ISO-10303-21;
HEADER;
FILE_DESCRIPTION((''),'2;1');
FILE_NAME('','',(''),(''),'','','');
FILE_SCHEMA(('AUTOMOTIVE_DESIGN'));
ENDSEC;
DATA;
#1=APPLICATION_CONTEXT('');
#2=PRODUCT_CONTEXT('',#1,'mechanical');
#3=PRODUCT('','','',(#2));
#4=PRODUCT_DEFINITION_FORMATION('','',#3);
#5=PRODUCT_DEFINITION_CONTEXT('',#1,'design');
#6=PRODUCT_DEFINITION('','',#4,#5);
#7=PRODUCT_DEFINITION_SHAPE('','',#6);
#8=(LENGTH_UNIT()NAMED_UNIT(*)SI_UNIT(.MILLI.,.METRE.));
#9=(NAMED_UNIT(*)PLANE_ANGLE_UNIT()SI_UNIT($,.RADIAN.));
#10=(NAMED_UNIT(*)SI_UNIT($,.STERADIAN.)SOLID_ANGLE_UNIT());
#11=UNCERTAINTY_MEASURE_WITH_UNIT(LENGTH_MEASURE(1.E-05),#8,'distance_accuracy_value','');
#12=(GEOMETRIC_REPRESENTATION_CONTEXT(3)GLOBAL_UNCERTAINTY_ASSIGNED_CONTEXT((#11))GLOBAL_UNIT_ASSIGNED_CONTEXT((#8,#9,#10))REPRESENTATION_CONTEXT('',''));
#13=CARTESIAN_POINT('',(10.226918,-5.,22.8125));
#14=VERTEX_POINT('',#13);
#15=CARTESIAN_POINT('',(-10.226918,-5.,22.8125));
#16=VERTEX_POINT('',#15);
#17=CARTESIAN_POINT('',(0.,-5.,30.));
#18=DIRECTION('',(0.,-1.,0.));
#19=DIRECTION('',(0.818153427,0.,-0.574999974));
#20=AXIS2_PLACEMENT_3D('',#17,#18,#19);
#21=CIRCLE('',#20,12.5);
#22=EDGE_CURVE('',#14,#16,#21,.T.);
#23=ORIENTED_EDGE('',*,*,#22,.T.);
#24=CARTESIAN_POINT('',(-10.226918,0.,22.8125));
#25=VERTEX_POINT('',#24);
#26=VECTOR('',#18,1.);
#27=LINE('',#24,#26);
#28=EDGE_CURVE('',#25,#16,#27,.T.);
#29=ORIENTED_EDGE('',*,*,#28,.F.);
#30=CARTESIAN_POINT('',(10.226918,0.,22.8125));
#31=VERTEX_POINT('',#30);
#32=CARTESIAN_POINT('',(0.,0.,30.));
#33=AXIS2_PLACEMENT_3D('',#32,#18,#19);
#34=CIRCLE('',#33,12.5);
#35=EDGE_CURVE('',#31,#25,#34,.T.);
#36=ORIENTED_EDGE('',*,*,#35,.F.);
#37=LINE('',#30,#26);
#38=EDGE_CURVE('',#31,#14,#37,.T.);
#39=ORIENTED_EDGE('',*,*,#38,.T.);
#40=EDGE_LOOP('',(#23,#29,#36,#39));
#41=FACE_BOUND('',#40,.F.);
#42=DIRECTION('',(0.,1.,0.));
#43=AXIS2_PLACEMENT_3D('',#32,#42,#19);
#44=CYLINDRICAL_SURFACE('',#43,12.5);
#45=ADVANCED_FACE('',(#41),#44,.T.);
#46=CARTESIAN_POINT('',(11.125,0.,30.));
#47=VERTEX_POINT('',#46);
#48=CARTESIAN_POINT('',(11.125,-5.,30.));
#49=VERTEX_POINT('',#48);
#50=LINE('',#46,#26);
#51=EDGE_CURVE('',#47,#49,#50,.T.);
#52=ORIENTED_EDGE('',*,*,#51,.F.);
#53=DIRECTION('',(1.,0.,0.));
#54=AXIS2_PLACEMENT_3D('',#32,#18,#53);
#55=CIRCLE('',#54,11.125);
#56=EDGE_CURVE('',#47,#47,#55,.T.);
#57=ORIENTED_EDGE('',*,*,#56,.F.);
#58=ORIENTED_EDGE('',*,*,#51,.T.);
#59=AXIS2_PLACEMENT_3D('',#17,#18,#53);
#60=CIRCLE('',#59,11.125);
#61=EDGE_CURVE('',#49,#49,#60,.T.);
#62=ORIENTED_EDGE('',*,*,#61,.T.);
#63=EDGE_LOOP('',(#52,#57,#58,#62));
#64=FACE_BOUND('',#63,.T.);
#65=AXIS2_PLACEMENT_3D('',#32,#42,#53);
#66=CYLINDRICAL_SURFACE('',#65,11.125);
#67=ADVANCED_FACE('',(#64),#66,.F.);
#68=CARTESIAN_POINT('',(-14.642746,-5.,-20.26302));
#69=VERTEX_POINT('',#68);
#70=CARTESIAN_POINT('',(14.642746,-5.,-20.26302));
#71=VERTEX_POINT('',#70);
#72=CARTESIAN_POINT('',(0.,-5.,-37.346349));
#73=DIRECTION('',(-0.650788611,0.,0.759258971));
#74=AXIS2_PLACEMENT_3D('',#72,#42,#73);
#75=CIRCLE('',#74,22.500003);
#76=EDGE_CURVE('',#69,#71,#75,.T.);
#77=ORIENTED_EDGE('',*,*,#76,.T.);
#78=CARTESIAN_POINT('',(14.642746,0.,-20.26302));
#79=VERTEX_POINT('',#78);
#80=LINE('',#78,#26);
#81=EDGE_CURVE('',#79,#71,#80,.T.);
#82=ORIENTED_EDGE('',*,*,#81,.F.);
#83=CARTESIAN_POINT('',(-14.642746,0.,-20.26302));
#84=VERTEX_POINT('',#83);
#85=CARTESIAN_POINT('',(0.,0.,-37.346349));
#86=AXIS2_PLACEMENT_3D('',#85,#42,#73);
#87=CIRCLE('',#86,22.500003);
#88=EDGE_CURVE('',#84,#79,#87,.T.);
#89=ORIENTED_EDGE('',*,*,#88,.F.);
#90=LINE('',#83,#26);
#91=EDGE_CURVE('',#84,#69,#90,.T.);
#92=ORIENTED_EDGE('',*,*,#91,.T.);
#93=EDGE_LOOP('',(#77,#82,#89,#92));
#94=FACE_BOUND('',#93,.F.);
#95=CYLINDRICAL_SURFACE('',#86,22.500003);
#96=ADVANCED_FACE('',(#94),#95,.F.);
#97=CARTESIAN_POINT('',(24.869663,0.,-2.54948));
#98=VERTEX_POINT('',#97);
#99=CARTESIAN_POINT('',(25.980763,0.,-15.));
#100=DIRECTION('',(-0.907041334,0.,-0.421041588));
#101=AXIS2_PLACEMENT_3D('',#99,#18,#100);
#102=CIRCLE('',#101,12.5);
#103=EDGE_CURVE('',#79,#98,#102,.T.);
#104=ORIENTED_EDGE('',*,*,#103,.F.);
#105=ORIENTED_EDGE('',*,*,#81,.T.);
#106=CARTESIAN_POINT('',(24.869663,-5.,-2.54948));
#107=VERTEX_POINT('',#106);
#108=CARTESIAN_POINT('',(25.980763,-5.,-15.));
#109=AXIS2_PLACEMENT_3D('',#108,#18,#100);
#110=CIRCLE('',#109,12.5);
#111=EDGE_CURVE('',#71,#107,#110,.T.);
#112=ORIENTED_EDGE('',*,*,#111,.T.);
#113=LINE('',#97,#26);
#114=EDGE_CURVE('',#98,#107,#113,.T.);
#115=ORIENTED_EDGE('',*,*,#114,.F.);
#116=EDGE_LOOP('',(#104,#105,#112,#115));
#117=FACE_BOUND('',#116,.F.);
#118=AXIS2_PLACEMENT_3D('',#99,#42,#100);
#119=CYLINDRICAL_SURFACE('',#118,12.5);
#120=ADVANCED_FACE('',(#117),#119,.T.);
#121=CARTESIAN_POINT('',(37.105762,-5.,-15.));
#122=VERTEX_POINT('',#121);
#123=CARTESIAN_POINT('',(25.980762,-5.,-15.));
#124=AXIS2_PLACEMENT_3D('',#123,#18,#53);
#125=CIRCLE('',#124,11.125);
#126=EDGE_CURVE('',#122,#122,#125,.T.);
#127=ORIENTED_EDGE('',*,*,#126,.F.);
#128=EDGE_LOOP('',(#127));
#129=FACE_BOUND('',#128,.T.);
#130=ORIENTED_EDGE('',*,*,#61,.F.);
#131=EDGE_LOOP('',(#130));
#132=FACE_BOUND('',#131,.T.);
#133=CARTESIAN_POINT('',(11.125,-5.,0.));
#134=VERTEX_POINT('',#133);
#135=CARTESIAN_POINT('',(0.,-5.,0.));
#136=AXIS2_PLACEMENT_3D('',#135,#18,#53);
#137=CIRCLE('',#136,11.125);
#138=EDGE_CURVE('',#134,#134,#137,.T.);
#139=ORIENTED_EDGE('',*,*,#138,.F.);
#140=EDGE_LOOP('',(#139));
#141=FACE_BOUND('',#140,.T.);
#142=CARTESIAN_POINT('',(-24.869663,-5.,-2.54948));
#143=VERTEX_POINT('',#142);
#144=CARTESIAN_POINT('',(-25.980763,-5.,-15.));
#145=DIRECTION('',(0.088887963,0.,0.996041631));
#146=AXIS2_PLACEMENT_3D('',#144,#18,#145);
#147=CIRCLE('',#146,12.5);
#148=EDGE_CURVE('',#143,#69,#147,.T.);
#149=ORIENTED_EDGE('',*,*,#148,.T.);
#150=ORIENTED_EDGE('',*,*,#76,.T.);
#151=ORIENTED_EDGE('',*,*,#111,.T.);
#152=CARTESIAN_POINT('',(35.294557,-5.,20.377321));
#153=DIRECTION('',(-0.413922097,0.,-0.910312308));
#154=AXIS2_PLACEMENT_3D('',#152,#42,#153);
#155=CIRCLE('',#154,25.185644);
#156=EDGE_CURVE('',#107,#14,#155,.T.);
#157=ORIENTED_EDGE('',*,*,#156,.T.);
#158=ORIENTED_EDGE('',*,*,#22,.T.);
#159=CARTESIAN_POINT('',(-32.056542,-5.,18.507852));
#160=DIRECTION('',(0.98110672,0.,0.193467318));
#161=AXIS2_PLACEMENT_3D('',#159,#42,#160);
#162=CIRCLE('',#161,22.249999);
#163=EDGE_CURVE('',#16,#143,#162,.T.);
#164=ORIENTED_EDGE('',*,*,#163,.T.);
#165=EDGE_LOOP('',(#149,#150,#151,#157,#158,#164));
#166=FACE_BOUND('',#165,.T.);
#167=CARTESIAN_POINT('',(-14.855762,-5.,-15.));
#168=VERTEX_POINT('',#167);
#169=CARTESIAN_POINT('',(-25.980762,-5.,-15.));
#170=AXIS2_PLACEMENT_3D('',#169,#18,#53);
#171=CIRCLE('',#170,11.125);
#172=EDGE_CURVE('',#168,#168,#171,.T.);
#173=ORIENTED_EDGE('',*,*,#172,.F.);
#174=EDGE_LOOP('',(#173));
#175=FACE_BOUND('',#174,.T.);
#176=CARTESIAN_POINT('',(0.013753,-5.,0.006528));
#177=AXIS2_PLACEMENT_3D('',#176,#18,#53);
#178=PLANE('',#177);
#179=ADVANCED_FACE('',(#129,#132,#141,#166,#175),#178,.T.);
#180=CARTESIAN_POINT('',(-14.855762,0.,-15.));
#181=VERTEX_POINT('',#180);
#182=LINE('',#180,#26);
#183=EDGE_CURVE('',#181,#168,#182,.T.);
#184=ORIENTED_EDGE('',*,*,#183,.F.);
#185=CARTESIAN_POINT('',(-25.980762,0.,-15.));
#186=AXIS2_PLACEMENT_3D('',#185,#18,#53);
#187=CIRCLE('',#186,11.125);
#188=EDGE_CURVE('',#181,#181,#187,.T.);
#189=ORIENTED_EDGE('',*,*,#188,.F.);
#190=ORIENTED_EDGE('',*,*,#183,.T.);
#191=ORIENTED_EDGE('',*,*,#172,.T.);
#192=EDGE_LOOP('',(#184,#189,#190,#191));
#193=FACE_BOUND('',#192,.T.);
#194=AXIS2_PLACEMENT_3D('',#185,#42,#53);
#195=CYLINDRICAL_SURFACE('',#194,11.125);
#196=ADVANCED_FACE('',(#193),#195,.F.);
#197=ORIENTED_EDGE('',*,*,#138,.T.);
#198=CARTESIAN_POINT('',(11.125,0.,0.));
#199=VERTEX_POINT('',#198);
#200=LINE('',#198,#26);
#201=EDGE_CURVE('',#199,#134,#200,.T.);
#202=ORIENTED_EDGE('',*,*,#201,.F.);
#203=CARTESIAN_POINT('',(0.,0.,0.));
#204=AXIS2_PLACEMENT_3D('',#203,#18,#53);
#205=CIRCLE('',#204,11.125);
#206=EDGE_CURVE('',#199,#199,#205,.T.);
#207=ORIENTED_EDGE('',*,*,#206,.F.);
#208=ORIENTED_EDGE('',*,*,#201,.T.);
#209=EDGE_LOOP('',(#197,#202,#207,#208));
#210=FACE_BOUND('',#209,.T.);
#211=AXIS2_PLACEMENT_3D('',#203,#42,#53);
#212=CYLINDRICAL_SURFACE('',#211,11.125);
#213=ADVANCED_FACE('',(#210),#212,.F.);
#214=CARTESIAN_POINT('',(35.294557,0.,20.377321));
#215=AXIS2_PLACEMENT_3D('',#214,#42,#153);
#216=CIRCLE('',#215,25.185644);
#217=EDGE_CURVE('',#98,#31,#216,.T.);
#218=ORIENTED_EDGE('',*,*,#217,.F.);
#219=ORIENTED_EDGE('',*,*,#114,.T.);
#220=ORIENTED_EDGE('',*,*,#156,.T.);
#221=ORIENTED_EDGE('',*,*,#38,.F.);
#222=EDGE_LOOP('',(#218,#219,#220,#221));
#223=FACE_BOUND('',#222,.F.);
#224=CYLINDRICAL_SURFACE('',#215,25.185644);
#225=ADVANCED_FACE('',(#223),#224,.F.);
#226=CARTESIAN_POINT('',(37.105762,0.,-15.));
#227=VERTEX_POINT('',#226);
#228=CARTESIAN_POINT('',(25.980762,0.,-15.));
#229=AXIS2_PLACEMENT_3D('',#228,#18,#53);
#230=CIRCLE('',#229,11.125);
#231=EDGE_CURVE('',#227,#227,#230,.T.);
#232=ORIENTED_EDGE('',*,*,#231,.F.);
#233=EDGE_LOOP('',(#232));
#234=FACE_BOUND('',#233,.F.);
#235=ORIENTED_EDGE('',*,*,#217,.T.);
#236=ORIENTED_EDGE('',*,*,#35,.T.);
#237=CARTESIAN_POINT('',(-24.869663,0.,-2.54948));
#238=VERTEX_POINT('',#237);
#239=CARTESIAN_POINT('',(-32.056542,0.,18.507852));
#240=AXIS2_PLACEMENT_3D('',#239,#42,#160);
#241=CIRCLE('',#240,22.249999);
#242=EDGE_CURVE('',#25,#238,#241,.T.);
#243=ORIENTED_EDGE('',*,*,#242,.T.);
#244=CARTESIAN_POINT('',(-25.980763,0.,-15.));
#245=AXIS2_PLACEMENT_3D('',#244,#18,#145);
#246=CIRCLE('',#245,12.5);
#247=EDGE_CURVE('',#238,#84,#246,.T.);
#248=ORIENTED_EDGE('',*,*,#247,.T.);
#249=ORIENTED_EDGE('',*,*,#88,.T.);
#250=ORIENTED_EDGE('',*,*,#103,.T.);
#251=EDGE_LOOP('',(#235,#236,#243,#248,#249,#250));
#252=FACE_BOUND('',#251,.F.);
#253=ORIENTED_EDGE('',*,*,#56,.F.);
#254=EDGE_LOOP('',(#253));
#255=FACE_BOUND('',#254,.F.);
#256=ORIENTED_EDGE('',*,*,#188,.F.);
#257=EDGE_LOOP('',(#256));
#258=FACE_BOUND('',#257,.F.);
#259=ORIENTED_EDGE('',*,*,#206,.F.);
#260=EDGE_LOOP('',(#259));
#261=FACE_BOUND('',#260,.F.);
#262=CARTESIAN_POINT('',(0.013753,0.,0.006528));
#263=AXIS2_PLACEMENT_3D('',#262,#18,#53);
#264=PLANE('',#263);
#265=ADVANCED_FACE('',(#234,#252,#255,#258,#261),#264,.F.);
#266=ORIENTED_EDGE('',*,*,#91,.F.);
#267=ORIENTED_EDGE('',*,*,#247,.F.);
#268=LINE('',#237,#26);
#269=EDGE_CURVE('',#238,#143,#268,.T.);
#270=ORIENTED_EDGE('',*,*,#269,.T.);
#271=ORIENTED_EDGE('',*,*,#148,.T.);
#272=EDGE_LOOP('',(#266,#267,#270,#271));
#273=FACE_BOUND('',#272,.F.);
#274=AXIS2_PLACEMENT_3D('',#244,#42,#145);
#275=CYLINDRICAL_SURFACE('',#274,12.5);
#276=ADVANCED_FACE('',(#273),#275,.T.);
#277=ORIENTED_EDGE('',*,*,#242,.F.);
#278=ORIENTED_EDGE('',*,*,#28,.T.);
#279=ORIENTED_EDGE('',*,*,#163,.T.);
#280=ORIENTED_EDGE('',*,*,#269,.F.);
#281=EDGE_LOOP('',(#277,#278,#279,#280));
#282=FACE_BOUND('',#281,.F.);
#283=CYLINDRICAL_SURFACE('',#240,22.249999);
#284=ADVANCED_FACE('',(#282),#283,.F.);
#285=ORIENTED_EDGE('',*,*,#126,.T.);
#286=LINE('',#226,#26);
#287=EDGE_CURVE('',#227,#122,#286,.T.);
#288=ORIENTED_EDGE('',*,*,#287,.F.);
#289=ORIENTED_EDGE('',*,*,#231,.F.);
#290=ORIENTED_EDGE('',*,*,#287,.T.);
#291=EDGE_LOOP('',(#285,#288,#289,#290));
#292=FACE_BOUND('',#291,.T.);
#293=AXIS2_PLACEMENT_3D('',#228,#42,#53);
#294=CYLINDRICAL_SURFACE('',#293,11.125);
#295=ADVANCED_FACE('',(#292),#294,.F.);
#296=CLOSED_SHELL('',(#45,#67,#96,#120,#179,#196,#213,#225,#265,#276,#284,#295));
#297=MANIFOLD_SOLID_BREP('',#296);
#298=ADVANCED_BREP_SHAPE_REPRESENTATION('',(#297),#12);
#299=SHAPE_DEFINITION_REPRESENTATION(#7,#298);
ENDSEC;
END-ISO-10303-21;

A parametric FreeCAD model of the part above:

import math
import FreeCAD as App
import Part
import Sketcher
from FreeCAD import Vector
Q = App.Units.Quantity

doc = App.newDocument("Part")
params = doc.addObject("Spreadsheet::Sheet", "Params")
for row, (alias, value) in enumerate([
    ("sketch1_radius", "12.5 mm"),
    ("sketch1_diameter", "22.25 mm"),
    ("sketch1_radius2", "22.249999 mm"),
    ("pad1_length", "5 mm"),
], start=1):
    params.set(f"A{row}", alias)
    params.set(f"B{row}", "=" + value)
    params.setAlias(f"B{row}", alias)

body = doc.addObject("PartDesign::Body", "Body")

sketch1 = body.newObject("Sketcher::SketchObject", "Sketch")
sketch1.AttachmentSupport = (doc.getObject("XZ_Plane"), [""])
sketch1.MapMode = "FlatFace"
sketch1.addGeometry([
    Part.ArcOfCircle(Part.Circle(Vector(35, 20, 0), Vector(0, 0, 1), 25), math.radians(174), math.radians(246)),
    Part.ArcOfCircle(Part.Circle(Vector(0, 30, 0), Vector(0, 0, 1), 13), math.radians(-35), math.radians(215)),
    Part.ArcOfCircle(Part.Circle(Vector(-32, 19, 0), Vector(0, 0, 1), 22), math.radians(-71), math.radians(11)),
    Part.ArcOfCircle(Part.Circle(Vector(-26, -15, 0), Vector(0, 0, 1), 12), math.radians(85), math.radians(335)),
    Part.ArcOfCircle(Part.Circle(Vector(0, -37, 0), Vector(0, 0, 1), 23), math.radians(49), math.radians(131)),
    Part.ArcOfCircle(Part.Circle(Vector(26, -15, 0), Vector(0, 0, 1), 12), math.radians(-155), math.radians(95)),
    Part.Circle(Vector(-26, -15, 0), Vector(0, 0, 1), 11),
    Part.Circle(Vector(26, -15, 0), Vector(0, 0, 1), 11),
    Part.Circle(Vector(0, 0, 0), Vector(0, 0, 1), 11),
    Part.Circle(Vector(0, 30, 0), Vector(0, 0, 1), 11),
], False)
sketch1.addConstraint([
    Sketcher.Constraint("Coincident", 0, 1, 1, 1),
    Sketcher.Constraint("Coincident", 1, 2, 2, 2),
    Sketcher.Constraint("Coincident", 2, 1, 3, 1),
    Sketcher.Constraint("Coincident", 3, 2, 4, 2),
    Sketcher.Constraint("Coincident", 4, 1, 5, 1),
    Sketcher.Constraint("Coincident", 5, 2, 0, 2),
    Sketcher.Constraint("Coincident", 8, 3, -1, 1),
    Sketcher.Constraint("Coincident", 6, 3, 3, 3),
    Sketcher.Constraint("Coincident", 7, 3, 5, 3),
    Sketcher.Constraint("Coincident", 9, 3, 1, 3),
    Sketcher.Constraint("Equal", 1, 3),
    Sketcher.Constraint("Equal", 3, 5),
    Sketcher.Constraint("Equal", 6, 7),
    Sketcher.Constraint("Equal", 7, 8),
    Sketcher.Constraint("Equal", 8, 9),
    Sketcher.Constraint("Symmetric", 3, 3, 5, 3, -2),
    Sketcher.Constraint("Symmetric", 0, 1, 1, 2, -2),
    Sketcher.Constraint("PointOnObject", 4, 3, -2),
    Sketcher.Constraint("Horizontal", 2, 1, 5, 2),
    Sketcher.Constraint("Radius", 1, Q("12.5 mm")),
    Sketcher.Constraint("Diameter", 6, Q("22.25 mm")),
    Sketcher.Constraint("Radius", 2, Q("22.249999 mm")),
    Sketcher.Constraint("DistanceY", -1, 1, 1, 3, Q("30 mm")),
    Sketcher.Constraint("DistanceY", 3, 3, -1, 1, Q("15 mm")),
    Sketcher.Constraint("Radius", 0, Q("25.185644 mm")),
    Sketcher.Constraint("Radius", 4, Q("22.500003 mm")),
    Sketcher.Constraint("DistanceY", -1, 1, 0, 1, Q("22.8125 mm")),
    Sketcher.Constraint("DistanceX", 2, 3, 0, 3, Q("67.351099 mm")),
    Sketcher.Constraint("DistanceY", 4, 3, 2, 3, Q("55.854202 mm")),
    Sketcher.Constraint("DistanceX", 6, 3, 2, 1, Q("1.111099 mm")),
])
sketch1.setExpression("Constraints[19]", "Params.sketch1_radius")
sketch1.setExpression("Constraints[20]", "Params.sketch1_diameter")
sketch1.setExpression("Constraints[21]", "Params.sketch1_radius2")
pad1 = body.newObject("PartDesign::Pad", "Pad")
pad1.Profile = sketch1
pad1.setExpression("Length", "Params.pad1_length")

doc.recompute()
